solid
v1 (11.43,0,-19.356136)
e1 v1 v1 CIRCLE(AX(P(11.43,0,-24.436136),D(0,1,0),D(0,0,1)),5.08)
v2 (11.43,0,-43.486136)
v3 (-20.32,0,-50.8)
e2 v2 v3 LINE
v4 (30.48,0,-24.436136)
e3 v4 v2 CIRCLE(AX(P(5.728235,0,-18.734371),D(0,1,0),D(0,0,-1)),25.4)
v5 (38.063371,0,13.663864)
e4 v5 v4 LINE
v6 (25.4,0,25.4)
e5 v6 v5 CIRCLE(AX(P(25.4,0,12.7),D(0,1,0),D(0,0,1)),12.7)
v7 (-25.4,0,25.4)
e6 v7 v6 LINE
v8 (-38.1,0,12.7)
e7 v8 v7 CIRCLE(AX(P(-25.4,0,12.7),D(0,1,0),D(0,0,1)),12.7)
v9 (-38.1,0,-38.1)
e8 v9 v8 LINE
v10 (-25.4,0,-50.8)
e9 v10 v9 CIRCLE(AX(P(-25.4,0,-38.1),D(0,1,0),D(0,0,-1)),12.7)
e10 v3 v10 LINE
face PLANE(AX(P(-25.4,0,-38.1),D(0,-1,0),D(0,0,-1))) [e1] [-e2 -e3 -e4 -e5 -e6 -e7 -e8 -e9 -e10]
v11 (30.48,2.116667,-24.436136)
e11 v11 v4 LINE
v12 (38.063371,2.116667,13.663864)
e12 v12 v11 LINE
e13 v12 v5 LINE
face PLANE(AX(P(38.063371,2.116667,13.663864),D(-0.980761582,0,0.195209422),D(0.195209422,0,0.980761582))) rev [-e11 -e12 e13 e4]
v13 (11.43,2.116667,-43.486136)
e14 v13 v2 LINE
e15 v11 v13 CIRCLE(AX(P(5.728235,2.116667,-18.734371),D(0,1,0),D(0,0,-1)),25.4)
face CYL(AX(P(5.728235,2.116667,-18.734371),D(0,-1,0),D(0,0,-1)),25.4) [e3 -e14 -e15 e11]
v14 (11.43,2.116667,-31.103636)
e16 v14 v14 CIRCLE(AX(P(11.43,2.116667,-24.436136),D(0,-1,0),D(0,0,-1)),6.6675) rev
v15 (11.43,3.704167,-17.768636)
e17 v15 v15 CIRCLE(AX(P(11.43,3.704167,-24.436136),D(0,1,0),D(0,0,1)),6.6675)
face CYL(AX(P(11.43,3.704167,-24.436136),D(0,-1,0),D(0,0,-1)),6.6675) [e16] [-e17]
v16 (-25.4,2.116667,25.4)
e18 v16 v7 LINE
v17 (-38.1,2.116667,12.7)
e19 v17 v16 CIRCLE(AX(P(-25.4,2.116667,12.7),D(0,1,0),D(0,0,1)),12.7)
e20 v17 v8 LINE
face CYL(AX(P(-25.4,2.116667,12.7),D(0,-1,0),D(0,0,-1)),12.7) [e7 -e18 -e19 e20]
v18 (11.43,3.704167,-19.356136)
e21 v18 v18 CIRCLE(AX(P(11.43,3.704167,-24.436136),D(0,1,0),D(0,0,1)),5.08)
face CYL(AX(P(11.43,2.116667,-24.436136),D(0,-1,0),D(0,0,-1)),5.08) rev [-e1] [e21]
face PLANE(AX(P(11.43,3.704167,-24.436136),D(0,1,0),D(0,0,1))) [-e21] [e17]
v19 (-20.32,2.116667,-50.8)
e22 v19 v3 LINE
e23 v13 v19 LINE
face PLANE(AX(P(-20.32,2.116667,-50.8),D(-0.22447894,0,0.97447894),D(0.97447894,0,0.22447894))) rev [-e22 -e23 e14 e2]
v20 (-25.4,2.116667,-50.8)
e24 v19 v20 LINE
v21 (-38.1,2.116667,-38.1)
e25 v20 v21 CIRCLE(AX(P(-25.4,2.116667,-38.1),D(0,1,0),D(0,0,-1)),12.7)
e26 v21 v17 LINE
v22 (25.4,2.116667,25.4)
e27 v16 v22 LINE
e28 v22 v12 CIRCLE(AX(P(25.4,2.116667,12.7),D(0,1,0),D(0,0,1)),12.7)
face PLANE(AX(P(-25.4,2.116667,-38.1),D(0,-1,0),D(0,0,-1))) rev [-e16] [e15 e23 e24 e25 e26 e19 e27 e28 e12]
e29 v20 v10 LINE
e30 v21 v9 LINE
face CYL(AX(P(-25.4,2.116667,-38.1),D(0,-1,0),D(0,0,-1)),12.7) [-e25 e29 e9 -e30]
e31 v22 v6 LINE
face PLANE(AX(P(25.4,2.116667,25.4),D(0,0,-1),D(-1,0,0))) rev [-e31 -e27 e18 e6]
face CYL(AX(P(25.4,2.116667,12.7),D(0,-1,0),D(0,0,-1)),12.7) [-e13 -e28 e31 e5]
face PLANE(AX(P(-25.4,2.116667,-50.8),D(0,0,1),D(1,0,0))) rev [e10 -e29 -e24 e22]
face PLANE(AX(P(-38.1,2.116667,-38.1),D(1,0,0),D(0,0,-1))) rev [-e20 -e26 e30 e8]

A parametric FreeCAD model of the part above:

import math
import FreeCAD as App
import Part
import Sketcher
from FreeCAD import Vector
Q = App.Units.Quantity

doc = App.newDocument("Part")
params = doc.addObject("Spreadsheet::Sheet", "Params")
for row, (alias, value) in enumerate([
    ("sketch1_radius", "1 in"),
    ("sketch1_diameter", "0.4 in"),
    ("sketch1_radius2", "0.5 in"),
    ("sketch1_width", "2 in"),
    ("sketch1_width2", "0.2 in"),
    ("pad1_length", "2.116667 mm"),
    ("sketch2_diameter", "0.4 in"),
    ("sketch2_diameter2", "0.525 in"),
    ("pad2_length", "0.0625 in"),
], start=1):
    params.set(f"A{row}", alias)
    params.set(f"B{row}", "=" + value)
    params.setAlias(f"B{row}", alias)

body = doc.addObject("PartDesign::Body", "Body")

sketch1 = body.newObject("Sketcher::SketchObject", "Sketch")
sketch1.AttachmentSupport = (doc.getObject("XZ_Plane"), [""])
sketch1.MapMode = "FlatFace"
sketch1.addGeometry(Part.LineSegment(Vector(-20, -51, 0), Vector(-25, -51, 0)), False)
sketch1.addGeometry(Part.ArcOfCircle(Part.Circle(Vector(-25, -38, 0), Vector(0, 0, 1), 13), math.radians(180), math.radians(270)), False)
sketch1.addGeometry(Part.LineSegment(Vector(-38, -38, 0), Vector(-38, 13, 0)), False)
sketch1.addGeometry(Part.ArcOfCircle(Part.Circle(Vector(-25, 13, 0), Vector(0, 0, 1), 13), math.radians(90), math.radians(180)), False)
sketch1.addGeometry(Part.LineSegment(Vector(-25, 25, 0), Vector(25, 25, 0)), False)
sketch1.addGeometry(Part.ArcOfCircle(Part.Circle(Vector(25, 13, 0), Vector(0, 0, 1), 13), math.radians(4), math.radians(90)), False)
sketch1.addGeometry(Part.LineSegment(Vector(38, 14, 0), Vector(30, -24, 0)), False)
sketch1.addGeometry(Part.ArcOfCircle(Part.Circle(Vector(6, -19, 0), Vector(0, 0, 1), 25), math.radians(-77), math.radians(-13)), False)
sketch1.addGeometry(Part.LineSegment(Vector(11, -43, 0), Vector(-20, -51, 0)), False)
sketch1.addGeometry(Part.Circle(Vector(11, -24, 0), Vector(0, 0, 1), 5), False)
sketch1.addConstraint(Sketcher.Constraint("Tangent", 0, 2, 1, 2))
sketch1.addConstraint(Sketcher.Constraint("Tangent", 1, 1, 2, 1))
sketch1.addConstraint(Sketcher.Constraint("Tangent", 2, 2, 3, 2))
sketch1.addConstraint(Sketcher.Constraint("Tangent", 3, 1, 4, 1))
sketch1.addConstraint(Sketcher.Constraint("Tangent", 4, 2, 5, 2))
sketch1.addConstraint(Sketcher.Constraint("Coincident", 5, 1, 6, 1))
sketch1.addConstraint(Sketcher.Constraint("Coincident", 6, 2, 7, 2))
sketch1.addConstraint(Sketcher.Constraint("Tangent", 7, 1, 8, 1))
sketch1.addConstraint(Sketcher.Constraint("Coincident", 8, 2, 0, 1))
sketch1.addConstraint(Sketcher.Constraint("Horizontal", 0))
sketch1.addConstraint(Sketcher.Constraint("Vertical", 2))
sketch1.addConstraint(Sketcher.Constraint("Horizontal", 4))
sketch1.addConstraint(Sketcher.Constraint("Equal", 1, 3))
sketch1.addConstraint(Sketcher.Constraint("Equal", 3, 5))
sketch1.addConstraint(Sketcher.Constraint("Horizontal", 9, 3, 6, 2))
sketch1.addConstraint(Sketcher.Constraint("Vertical", 9, 3, 7, 1))
sketch1.addConstraint(Sketcher.Constraint("Equal", 4, 2))
sketch1.addConstraint(Sketcher.Constraint("Radius", 7, Q("1 in")))
sketch1.addConstraint(Sketcher.Constraint("Diameter", 9, Q("0.4 in")))
sketch1.addConstraint(Sketcher.Constraint("Radius", 1, Q("0.5 in")))
sketch1.addConstraint(Sketcher.Constraint("DistanceX", 4, 1, 4, 2, Q("2 in")))
sketch1.addConstraint(Sketcher.Constraint("DistanceX", 0, 2, 0, 1, Q("0.2 in")))
sketch1.addConstraint(Sketcher.Constraint("DistanceX", 1, 3, -1, 1, Q("1 in")))
sketch1.addConstraint(Sketcher.Constraint("DistanceY", 0, 2, -1, 1, Q("2 in")))
sketch1.addConstraint(Sketcher.Constraint("DistanceX", -1, 1, 6, 2, Q("1.2 in")))
sketch1.addConstraint(Sketcher.Constraint("DistanceY", 9, 3, 5, 1, Q("1.5 in")))
sketch1.addConstraint(Sketcher.Constraint("DistanceX", -1, 1, 9, 3, Q("0.45 in")))
sketch1.addConstraint(Sketcher.Constraint("DistanceY", 7, 1, 9, 3, Q("0.75 in")))
sketch1.setExpression("Constraints[17]", "Params.sketch1_radius")
sketch1.setExpression("Constraints[18]", "Params.sketch1_diameter")
sketch1.setExpression("Constraints[19]", "Params.sketch1_radius2")
sketch1.setExpression("Constraints[20]", "Params.sketch1_width")
sketch1.setExpression("Constraints[21]", "Params.sketch1_width2")
pad1 = body.newObject("PartDesign::Pad", "Pad")
pad1.Profile = sketch1
pad1.setExpression("Length", "Params.pad1_length")
pad1.Reversed = True

sketch2 = body.newObject("Sketcher::SketchObject", "Sketch001")
sketch2.AttachmentSupport = (doc.getObject("XZ_Plane"), [""])
sketch2.MapMode = "FlatFace"
sketch2.AttachmentOffset = App.Placement(Vector(0, 0, -2.116667), App.Rotation())
sketch2.addGeometry(Part.Circle(Vector(11, -24, 0), Vector(0, 0, 1), 7), False)
sketch2.addGeometry(Part.Circle(Vector(11, -24, 0), Vector(0, 0, 1), 5), False)
sketch2.addConstraint(Sketcher.Constraint("Coincident", 1, 3, 0, 3))
sketch2.addConstraint(Sketcher.Constraint("Diameter", 1, Q("0.4 in")))
sketch2.addConstraint(Sketcher.Constraint("Diameter", 0, Q("0.525 in")))
sketch2.addConstraint(Sketcher.Constraint("DistanceX", -1, 1, 0, 3, Q("0.45 in")))
sketch2.addConstraint(Sketcher.Constraint("DistanceY", 0, 3, -1, 1, 24.436136))
sketch2.setExpression("Constraints[1]", "Params.sketch2_diameter")
sketch2.setExpression("Constraints[2]", "Params.sketch2_diameter2")
pad2 = body.newObject("PartDesign::Pad", "Pad001")
pad2.Profile = sketch2
pad2.setExpression("Length", "Params.pad2_length")
pad2.Reversed = True

doc.recompute()
